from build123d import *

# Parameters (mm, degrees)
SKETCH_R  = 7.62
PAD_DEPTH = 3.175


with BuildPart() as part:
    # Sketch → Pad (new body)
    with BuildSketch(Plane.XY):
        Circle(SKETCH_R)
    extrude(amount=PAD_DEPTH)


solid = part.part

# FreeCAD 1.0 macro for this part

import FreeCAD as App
import Part
import Sketcher
from FreeCAD import Vector
Q = App.Units.Quantity

doc = App.newDocument("Part")
body = doc.addObject("PartDesign::Body", "Body")

# Sketch on XY plane
sketch1 = doc.addObject("Sketcher::SketchObject", "Sketch")
body.addObject(sketch1)
sketch1.AttachmentSupport = (doc.XY_Plane, [""])
sketch1.MapMode = "FlatFace"
sketch1.addGeometry(Part.Circle(Vector(0, 0, 0), Vector(0, 0, 1), 8), False)
sketch1.addConstraint(Sketcher.Constraint("Coincident", 0, 3, -1, 1))
sketch1.addConstraint(Sketcher.Constraint("Diameter", 0, Q("0.6 in")))
pad1 = doc.addObject("PartDesign::Pad", "Pad")
body.addObject(pad1)
pad1.Profile = sketch1
pad1.Length = Q("0.125 in")

doc.recompute()
